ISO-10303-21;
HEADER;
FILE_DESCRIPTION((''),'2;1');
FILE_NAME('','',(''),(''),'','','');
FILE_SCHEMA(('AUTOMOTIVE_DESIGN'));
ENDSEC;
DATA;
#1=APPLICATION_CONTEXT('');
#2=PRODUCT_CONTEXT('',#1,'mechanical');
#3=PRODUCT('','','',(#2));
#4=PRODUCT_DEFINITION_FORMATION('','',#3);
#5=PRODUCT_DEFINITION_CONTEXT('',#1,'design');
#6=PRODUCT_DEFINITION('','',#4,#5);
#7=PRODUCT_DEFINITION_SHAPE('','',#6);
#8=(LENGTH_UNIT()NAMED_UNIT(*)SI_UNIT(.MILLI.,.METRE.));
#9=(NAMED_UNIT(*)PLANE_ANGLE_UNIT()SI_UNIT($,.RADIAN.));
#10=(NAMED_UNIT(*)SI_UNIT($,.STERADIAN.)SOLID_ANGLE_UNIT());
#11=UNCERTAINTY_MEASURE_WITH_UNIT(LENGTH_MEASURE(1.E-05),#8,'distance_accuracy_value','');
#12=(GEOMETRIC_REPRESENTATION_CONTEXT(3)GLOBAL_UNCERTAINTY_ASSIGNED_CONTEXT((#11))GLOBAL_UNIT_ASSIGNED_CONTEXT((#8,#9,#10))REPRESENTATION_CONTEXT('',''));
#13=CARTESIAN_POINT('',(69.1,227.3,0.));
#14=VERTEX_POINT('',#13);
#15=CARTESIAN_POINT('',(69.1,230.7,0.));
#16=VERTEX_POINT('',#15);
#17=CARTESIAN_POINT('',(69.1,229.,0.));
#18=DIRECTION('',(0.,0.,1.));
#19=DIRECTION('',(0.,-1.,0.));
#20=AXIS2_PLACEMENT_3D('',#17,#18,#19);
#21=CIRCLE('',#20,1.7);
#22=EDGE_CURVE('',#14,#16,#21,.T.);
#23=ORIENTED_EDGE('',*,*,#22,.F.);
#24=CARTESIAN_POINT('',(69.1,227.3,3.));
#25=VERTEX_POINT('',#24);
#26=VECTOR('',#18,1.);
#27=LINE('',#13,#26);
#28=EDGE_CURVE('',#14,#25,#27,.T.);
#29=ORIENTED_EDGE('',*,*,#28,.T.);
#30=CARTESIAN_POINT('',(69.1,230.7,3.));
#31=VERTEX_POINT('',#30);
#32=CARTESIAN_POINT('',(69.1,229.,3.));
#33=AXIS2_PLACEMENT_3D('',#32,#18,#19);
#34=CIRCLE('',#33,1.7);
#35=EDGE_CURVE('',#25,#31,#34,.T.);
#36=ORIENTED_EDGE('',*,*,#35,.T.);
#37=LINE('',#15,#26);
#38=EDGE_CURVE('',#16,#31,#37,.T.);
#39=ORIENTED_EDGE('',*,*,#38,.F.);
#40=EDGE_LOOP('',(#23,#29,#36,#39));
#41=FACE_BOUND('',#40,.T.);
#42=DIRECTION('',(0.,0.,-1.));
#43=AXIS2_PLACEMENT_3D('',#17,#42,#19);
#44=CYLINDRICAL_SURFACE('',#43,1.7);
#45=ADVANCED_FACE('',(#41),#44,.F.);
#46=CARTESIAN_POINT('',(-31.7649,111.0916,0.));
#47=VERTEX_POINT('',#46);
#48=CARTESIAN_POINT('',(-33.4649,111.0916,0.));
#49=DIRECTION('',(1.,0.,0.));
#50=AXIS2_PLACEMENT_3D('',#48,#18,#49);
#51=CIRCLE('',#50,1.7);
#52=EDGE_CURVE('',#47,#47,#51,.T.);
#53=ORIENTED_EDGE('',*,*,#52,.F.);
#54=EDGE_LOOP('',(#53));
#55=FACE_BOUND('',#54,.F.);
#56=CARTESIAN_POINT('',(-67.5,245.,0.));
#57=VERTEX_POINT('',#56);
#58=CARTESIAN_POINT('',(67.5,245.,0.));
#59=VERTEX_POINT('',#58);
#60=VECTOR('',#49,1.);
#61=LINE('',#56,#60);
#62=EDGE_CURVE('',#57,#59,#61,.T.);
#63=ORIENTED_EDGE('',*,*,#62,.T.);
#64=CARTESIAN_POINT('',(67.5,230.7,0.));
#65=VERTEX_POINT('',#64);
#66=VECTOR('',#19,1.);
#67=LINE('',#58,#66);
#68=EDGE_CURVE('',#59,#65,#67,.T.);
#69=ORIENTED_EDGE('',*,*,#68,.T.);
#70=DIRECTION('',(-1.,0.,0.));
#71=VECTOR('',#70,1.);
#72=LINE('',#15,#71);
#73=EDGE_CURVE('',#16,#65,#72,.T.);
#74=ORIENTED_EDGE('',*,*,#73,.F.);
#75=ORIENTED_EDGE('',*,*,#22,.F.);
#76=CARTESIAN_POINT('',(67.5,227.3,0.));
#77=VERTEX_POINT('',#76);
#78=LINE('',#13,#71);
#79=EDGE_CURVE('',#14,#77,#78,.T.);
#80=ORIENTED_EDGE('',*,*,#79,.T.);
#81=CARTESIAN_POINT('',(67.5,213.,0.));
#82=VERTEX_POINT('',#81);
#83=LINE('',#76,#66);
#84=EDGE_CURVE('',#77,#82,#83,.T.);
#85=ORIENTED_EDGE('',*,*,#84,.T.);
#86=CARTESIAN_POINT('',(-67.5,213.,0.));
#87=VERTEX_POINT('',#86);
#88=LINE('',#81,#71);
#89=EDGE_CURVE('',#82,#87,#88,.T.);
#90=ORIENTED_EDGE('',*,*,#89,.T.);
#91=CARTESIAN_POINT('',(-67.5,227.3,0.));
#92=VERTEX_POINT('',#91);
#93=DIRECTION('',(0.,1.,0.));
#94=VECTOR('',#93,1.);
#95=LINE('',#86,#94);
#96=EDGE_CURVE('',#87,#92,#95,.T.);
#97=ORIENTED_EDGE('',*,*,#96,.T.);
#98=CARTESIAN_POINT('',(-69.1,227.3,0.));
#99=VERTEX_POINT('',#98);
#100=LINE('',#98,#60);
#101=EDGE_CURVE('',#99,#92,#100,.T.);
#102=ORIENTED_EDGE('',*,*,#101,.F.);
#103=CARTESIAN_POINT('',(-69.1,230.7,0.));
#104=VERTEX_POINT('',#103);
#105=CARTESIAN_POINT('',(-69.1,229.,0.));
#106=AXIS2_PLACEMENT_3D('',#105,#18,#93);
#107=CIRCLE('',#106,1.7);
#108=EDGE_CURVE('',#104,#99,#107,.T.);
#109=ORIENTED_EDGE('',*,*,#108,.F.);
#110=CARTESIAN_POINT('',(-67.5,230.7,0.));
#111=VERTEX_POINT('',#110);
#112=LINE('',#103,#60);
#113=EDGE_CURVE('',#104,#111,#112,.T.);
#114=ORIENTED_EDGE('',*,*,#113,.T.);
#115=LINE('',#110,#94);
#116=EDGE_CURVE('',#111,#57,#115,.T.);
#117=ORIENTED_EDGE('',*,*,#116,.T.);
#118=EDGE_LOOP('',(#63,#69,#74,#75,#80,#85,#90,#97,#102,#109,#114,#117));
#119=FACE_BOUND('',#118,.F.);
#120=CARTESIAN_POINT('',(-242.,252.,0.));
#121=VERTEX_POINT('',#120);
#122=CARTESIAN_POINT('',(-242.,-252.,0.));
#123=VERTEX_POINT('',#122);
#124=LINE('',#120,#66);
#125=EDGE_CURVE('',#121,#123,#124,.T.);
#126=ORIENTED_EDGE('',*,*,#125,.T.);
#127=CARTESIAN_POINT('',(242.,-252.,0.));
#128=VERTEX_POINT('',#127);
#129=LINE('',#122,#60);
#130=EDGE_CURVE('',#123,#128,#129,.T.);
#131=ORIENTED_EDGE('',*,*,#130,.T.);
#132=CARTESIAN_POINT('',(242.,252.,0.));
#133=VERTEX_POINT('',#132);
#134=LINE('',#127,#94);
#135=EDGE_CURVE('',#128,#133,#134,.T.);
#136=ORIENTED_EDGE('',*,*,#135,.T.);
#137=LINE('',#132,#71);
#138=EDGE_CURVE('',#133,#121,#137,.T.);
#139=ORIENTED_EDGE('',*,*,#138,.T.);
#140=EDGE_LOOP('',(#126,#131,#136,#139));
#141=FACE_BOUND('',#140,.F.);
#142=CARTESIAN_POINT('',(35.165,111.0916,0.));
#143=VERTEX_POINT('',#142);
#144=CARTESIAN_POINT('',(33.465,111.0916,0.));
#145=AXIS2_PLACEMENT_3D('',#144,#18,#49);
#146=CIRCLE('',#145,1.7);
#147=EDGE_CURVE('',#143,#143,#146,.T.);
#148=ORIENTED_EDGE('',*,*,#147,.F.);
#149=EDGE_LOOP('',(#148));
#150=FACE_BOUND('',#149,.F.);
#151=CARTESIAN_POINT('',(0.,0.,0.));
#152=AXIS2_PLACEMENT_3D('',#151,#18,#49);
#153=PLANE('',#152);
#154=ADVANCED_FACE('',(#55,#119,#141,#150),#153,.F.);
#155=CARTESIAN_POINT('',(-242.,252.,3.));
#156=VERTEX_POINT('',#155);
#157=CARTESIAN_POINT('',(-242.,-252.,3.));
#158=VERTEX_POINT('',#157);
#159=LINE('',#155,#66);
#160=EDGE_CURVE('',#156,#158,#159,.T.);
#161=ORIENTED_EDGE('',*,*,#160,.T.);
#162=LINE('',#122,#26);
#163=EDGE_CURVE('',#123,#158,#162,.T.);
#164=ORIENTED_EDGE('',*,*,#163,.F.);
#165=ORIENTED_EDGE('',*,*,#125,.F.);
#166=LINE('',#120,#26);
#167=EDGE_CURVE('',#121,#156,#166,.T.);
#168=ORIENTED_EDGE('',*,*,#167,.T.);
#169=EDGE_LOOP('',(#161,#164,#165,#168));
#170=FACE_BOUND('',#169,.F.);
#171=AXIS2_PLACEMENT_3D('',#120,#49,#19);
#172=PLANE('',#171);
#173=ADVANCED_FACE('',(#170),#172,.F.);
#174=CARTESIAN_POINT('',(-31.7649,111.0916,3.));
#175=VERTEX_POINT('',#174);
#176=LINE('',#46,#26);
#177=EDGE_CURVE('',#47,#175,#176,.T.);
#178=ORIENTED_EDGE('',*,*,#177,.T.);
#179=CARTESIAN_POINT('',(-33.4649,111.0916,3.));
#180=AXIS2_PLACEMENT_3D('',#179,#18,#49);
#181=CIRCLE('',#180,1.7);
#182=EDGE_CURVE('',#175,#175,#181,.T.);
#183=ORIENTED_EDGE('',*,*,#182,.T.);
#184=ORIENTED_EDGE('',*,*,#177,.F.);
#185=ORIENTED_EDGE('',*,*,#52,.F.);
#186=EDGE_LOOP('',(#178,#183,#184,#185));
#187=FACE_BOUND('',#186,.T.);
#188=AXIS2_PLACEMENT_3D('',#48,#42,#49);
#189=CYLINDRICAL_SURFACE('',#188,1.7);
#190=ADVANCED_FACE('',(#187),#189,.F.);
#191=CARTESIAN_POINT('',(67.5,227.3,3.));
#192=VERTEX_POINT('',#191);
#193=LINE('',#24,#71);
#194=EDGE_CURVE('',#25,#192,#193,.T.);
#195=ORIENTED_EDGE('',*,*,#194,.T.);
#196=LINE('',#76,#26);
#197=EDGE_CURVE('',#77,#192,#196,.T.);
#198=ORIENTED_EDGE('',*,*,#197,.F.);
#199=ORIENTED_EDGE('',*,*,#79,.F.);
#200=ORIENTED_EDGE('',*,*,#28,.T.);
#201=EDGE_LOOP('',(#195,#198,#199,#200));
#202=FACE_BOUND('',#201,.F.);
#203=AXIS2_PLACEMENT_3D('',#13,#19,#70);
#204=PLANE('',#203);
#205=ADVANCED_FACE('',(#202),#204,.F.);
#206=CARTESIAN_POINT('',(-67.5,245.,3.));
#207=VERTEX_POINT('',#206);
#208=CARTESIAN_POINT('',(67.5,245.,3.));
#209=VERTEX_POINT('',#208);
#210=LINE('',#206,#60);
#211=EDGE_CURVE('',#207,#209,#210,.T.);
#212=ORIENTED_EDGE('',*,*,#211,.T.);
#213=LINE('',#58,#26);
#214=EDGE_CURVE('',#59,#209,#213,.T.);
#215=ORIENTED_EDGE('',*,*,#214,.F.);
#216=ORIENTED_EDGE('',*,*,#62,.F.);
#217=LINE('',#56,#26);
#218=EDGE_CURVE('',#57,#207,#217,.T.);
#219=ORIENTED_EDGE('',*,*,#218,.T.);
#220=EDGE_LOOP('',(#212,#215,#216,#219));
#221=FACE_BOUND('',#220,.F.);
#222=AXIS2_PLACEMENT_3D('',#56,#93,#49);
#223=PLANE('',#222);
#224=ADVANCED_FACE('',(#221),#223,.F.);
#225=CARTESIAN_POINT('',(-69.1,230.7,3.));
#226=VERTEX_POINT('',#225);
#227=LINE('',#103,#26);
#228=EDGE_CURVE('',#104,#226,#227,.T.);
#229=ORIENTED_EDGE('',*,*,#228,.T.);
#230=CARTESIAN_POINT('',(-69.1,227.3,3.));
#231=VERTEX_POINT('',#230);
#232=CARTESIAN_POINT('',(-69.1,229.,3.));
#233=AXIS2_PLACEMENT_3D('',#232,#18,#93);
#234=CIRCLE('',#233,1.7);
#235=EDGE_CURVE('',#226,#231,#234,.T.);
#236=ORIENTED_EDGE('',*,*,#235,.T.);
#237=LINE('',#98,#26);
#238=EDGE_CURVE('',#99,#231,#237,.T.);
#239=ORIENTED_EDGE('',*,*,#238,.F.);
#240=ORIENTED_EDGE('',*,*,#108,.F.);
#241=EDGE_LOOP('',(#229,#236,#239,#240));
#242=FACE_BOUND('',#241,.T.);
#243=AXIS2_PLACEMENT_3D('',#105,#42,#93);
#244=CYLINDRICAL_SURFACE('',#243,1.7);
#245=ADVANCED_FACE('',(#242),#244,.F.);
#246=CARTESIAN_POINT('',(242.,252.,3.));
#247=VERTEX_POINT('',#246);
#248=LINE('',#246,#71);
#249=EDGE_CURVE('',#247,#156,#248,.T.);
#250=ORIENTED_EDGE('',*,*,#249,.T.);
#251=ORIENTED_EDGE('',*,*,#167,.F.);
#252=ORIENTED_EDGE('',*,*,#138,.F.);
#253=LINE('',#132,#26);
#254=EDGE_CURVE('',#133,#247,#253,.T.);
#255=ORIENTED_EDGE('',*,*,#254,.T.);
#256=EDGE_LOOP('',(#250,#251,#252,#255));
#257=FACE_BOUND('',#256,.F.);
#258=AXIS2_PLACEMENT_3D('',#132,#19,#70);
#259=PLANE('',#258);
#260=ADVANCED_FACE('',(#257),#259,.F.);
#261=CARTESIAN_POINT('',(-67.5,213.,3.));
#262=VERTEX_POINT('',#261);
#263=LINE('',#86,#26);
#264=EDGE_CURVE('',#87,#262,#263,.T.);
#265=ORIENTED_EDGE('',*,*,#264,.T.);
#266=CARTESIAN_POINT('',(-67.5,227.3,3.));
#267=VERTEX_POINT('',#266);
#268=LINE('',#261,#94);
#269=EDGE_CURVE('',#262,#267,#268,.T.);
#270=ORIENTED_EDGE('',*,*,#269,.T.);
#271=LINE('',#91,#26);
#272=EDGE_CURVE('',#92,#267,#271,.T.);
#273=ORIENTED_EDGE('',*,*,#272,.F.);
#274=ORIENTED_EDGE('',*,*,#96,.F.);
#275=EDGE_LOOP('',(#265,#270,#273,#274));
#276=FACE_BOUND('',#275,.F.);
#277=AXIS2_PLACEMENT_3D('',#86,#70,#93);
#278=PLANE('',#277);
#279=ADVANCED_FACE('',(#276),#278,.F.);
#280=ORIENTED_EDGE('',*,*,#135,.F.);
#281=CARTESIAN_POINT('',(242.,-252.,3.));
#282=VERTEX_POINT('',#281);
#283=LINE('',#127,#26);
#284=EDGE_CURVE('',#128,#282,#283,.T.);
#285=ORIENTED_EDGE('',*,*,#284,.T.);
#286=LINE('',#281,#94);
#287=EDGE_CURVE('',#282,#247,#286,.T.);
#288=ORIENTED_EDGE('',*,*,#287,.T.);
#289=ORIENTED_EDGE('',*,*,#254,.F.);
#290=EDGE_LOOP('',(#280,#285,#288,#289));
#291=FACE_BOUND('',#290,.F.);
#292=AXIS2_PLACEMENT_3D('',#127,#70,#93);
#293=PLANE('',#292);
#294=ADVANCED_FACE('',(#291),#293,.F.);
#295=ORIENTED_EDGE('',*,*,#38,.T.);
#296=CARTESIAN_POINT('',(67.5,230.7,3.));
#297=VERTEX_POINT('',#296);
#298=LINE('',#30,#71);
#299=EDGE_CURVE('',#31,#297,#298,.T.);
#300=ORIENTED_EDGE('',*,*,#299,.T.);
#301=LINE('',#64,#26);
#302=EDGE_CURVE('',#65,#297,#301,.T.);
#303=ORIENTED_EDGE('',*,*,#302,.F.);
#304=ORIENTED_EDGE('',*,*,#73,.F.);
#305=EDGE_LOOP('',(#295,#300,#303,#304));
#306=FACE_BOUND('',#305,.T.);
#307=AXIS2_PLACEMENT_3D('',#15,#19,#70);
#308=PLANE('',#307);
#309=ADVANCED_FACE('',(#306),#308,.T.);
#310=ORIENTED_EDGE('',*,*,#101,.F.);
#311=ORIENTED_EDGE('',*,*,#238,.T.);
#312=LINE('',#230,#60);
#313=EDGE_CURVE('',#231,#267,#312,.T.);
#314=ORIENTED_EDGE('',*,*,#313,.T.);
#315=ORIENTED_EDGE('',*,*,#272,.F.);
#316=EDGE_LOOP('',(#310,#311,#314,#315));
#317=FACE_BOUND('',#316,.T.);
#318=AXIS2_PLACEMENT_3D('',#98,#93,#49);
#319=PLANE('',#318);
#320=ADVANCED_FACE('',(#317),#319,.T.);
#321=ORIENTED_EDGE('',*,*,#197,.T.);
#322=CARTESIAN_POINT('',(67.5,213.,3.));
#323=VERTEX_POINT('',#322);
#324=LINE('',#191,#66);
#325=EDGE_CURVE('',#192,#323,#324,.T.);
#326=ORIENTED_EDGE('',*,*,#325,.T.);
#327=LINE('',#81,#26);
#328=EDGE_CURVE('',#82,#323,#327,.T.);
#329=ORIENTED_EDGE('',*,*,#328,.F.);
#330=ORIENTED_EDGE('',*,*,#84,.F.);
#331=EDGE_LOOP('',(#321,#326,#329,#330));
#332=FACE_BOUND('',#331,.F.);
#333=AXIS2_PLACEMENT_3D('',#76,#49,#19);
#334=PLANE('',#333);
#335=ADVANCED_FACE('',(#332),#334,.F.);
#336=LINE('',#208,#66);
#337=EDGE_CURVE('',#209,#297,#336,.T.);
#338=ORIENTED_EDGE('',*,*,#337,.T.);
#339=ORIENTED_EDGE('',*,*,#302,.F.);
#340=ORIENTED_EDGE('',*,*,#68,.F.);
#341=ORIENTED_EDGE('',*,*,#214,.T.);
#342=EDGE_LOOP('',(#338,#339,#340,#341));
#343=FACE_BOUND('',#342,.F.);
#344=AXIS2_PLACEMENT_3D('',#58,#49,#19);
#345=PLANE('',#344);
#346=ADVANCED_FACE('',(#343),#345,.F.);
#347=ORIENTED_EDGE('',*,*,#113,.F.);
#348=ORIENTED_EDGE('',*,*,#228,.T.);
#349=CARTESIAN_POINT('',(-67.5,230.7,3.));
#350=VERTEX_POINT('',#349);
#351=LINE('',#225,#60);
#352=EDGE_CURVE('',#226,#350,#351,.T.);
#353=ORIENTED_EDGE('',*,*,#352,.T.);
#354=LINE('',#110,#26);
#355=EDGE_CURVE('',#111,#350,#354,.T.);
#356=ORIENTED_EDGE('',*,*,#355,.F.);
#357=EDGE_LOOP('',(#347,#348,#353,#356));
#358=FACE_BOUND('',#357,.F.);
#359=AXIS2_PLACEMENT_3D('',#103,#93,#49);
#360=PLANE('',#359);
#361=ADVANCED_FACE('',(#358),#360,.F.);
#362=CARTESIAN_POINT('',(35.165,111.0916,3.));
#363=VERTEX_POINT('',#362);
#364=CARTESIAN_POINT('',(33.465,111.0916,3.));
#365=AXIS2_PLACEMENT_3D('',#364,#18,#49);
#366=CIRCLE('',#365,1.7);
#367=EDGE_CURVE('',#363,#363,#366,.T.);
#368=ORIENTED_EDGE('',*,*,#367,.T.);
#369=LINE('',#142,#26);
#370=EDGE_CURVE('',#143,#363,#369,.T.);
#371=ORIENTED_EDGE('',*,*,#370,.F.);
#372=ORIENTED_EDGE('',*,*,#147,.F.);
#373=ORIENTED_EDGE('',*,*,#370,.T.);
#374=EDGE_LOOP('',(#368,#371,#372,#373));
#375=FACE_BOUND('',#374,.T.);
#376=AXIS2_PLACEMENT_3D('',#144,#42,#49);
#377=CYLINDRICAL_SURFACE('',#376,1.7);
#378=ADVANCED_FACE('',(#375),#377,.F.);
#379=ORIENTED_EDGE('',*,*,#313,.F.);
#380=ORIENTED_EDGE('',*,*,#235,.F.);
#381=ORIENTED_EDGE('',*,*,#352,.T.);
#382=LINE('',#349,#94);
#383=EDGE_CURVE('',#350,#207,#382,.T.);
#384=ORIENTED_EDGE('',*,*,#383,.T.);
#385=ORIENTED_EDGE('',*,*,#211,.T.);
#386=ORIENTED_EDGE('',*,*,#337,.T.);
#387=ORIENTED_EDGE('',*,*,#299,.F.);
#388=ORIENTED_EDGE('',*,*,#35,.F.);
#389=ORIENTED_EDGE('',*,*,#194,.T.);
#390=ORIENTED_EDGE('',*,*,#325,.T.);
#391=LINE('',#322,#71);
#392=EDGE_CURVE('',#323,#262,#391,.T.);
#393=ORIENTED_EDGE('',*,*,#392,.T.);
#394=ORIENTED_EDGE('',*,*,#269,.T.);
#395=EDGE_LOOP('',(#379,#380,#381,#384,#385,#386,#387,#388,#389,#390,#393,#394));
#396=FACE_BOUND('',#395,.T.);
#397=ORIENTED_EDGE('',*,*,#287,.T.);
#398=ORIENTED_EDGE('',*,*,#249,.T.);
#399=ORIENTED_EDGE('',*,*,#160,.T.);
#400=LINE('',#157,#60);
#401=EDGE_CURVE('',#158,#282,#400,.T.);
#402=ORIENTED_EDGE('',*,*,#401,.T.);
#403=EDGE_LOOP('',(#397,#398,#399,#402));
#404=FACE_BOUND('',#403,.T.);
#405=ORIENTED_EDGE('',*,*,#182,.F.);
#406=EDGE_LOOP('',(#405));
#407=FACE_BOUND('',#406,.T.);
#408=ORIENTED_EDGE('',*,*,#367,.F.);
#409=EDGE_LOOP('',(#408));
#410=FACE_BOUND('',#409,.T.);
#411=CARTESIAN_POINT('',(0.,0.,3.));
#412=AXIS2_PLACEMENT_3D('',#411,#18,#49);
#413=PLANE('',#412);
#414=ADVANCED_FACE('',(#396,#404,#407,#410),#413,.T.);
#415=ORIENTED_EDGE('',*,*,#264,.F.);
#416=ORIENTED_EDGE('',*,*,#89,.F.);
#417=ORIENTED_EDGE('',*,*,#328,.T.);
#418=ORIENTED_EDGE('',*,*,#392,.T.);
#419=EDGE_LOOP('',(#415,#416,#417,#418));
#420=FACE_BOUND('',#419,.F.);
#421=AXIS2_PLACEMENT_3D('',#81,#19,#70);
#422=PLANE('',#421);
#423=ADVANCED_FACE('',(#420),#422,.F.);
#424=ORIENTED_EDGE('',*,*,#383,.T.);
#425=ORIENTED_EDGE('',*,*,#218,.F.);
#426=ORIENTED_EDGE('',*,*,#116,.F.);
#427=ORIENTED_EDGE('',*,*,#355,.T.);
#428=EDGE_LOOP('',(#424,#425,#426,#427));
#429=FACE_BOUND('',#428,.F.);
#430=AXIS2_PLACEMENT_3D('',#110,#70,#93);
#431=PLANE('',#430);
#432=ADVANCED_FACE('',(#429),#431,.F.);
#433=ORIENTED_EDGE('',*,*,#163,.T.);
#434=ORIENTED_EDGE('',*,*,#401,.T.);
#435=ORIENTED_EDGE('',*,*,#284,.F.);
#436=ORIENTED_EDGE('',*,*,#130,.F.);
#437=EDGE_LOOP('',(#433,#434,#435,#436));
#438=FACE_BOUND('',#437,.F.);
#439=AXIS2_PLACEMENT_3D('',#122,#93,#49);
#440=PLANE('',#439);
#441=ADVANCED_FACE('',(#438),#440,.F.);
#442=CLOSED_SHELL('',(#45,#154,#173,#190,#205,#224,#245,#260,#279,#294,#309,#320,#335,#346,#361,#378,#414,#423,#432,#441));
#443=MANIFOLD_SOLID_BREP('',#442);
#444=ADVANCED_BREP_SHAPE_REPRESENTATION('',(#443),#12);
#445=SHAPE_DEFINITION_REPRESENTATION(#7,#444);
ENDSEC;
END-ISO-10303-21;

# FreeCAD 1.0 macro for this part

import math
import FreeCAD as App
import Part
import Sketcher
from FreeCAD import Vector


def add_polygon(sketch, points):
    """Adds a closed chain of lines whose ends are joined by coincident constraints."""
    first, n = sketch.GeometryCount, len(points)
    for a, b in zip(points, points[1:] + points[:1]):
        sketch.addGeometry(Part.LineSegment(App.Vector(*a, 0), App.Vector(*b, 0)), False)
    for i in range(n):
        sketch.addConstraint(Sketcher.Constraint("Coincident", first + i, 2, first + (i + 1) % n, 1))

doc = App.newDocument("Part")
body = doc.addObject("PartDesign::Body", "Body")

# Sketch on XY plane
sketch1 = doc.addObject("Sketcher::SketchObject", "Sketch")
body.addObject(sketch1)
sketch1.AttachmentSupport = (doc.XY_Plane, [""])
sketch1.MapMode = "FlatFace"
add_polygon(sketch1, [(-242, 252), (-242, -252), (242, -252), (242, 252)])  # lines 0-3
sketch1.addGeometry(Part.Circle(Vector(-33.5, 111.1, 0), Vector(0, 0, 1), 1.7), False)  # 4
sketch1.addGeometry(Part.Circle(Vector(33.5, 111.1, 0), Vector(0, 0, 1), 1.7), False)  # 5
sketch1.addGeometry(Part.LineSegment(Vector(-67.5, 230.7, 0), Vector(-67.5, 245, 0)), False)  # 6
sketch1.addGeometry(Part.LineSegment(Vector(-67.5, 245, 0), Vector(67.5, 245, 0)), False)  # 7
sketch1.addGeometry(Part.LineSegment(Vector(67.5, 245, 0), Vector(67.5, 230.7, 0)), False)  # 8
sketch1.addGeometry(Part.LineSegment(Vector(67.5, 230.7, 0), Vector(69.1, 230.7, 0)), False)  # 9
sketch1.addGeometry(Part.ArcOfCircle(Part.Circle(Vector(69.1, 229, 0), Vector(0, 0, 1), 1.7), math.radians(-90), math.radians(90)), False)  # 10
sketch1.addGeometry(Part.LineSegment(Vector(69.1, 227.3, 0), Vector(67.5, 227.3, 0)), False)  # 11
sketch1.addGeometry(Part.LineSegment(Vector(67.5, 227.3, 0), Vector(67.5, 213, 0)), False)  # 12
sketch1.addGeometry(Part.LineSegment(Vector(67.5, 213, 0), Vector(-67.5, 213, 0)), False)  # 13
sketch1.addGeometry(Part.LineSegment(Vector(-67.5, 213, 0), Vector(-67.5, 227.3, 0)), False)  # 14
sketch1.addGeometry(Part.LineSegment(Vector(-67.5, 227.3, 0), Vector(-69.1, 227.3, 0)), False)  # 15
sketch1.addGeometry(Part.ArcOfCircle(Part.Circle(Vector(-69.1, 229, 0), Vector(0, 0, 1), 1.7), math.radians(90), math.radians(270)), False)  # 16
sketch1.addGeometry(Part.LineSegment(Vector(-69.1, 230.7, 0), Vector(-67.5, 230.7, 0)), False)  # 17
sketch1.addConstraint([
    Sketcher.Constraint("Coincident", 6, 2, 7, 1),
    Sketcher.Constraint("Coincident", 7, 2, 8, 1),
    Sketcher.Constraint("Coincident", 8, 2, 9, 1),
    Sketcher.Constraint("Tangent", 9, 2, 10, 2),
    Sketcher.Constraint("Tangent", 10, 1, 11, 1),
    Sketcher.Constraint("Coincident", 11, 2, 12, 1),
    Sketcher.Constraint("Coincident", 12, 2, 13, 1),
    Sketcher.Constraint("Coincident", 13, 2, 14, 1),
    Sketcher.Constraint("Coincident", 14, 2, 15, 1),
    Sketcher.Constraint("Tangent", 15, 2, 16, 2),
    Sketcher.Constraint("Tangent", 16, 1, 17, 1),
    Sketcher.Constraint("Coincident", 17, 2, 6, 1),
    Sketcher.Constraint("Vertical", 0),
    Sketcher.Constraint("Horizontal", 1),
    Sketcher.Constraint("Vertical", 2),
    Sketcher.Constraint("Horizontal", 3),
    Sketcher.Constraint("Vertical", 6),
    Sketcher.Constraint("Horizontal", 7),
    Sketcher.Constraint("Vertical", 8),
    Sketcher.Constraint("Horizontal", 9),
    Sketcher.Constraint("Horizontal", 11),
    Sketcher.Constraint("Vertical", 12),
    Sketcher.Constraint("Horizontal", 13),
    Sketcher.Constraint("Vertical", 14),
    Sketcher.Constraint("Horizontal", 15),
    Sketcher.Constraint("Horizontal", 17),
    Sketcher.Constraint("Equal", 4, 5),
    Sketcher.Constraint("Equal", 5, 10),
    Sketcher.Constraint("Equal", 10, 16),
    Sketcher.Constraint("Symmetric", 0, 2, 2, 2, -1, 1),
    Sketcher.Constraint("Symmetric", 4, 3, 5, 3, -2),
    Sketcher.Constraint("Symmetric", 10, 3, 16, 3, -2),
    Sketcher.Constraint("Vertical", 8, 2, 11, 2),
    Sketcher.Constraint("Vertical", 6, 2, 13, 2),
    Sketcher.Constraint("Equal", 11, 15),
    Sketcher.Constraint("Equal", 8, 12),
    Sketcher.Constraint("Diameter", 4, 3.4),
    Sketcher.Constraint("DistanceX", 1, 1, 1, 2, 484.0),
    Sketcher.Constraint("DistanceX", 7, 1, 7, 2, 135.0),
    Sketcher.Constraint("DistanceY", 0, 2, 0, 1, 504.0),
    Sketcher.Constraint("DistanceY", 6, 2, 3, 2, 7.0),
    Sketcher.Constraint("DistanceY", 13, 2, 6, 2, 32.0),
    Sketcher.Constraint("DistanceX", 16, 3, 10, 3, 138.2),
    Sketcher.Constraint("DistanceX", 4, 3, 5, 3, 66.93),
    Sketcher.Constraint("DistanceY", 5, 3, 10, 3, 117.9084),
])
pad1 = doc.addObject("PartDesign::Pad", "Pad")
body.addObject(pad1)
pad1.Profile = sketch1
pad1.Length = 3

doc.recompute()
